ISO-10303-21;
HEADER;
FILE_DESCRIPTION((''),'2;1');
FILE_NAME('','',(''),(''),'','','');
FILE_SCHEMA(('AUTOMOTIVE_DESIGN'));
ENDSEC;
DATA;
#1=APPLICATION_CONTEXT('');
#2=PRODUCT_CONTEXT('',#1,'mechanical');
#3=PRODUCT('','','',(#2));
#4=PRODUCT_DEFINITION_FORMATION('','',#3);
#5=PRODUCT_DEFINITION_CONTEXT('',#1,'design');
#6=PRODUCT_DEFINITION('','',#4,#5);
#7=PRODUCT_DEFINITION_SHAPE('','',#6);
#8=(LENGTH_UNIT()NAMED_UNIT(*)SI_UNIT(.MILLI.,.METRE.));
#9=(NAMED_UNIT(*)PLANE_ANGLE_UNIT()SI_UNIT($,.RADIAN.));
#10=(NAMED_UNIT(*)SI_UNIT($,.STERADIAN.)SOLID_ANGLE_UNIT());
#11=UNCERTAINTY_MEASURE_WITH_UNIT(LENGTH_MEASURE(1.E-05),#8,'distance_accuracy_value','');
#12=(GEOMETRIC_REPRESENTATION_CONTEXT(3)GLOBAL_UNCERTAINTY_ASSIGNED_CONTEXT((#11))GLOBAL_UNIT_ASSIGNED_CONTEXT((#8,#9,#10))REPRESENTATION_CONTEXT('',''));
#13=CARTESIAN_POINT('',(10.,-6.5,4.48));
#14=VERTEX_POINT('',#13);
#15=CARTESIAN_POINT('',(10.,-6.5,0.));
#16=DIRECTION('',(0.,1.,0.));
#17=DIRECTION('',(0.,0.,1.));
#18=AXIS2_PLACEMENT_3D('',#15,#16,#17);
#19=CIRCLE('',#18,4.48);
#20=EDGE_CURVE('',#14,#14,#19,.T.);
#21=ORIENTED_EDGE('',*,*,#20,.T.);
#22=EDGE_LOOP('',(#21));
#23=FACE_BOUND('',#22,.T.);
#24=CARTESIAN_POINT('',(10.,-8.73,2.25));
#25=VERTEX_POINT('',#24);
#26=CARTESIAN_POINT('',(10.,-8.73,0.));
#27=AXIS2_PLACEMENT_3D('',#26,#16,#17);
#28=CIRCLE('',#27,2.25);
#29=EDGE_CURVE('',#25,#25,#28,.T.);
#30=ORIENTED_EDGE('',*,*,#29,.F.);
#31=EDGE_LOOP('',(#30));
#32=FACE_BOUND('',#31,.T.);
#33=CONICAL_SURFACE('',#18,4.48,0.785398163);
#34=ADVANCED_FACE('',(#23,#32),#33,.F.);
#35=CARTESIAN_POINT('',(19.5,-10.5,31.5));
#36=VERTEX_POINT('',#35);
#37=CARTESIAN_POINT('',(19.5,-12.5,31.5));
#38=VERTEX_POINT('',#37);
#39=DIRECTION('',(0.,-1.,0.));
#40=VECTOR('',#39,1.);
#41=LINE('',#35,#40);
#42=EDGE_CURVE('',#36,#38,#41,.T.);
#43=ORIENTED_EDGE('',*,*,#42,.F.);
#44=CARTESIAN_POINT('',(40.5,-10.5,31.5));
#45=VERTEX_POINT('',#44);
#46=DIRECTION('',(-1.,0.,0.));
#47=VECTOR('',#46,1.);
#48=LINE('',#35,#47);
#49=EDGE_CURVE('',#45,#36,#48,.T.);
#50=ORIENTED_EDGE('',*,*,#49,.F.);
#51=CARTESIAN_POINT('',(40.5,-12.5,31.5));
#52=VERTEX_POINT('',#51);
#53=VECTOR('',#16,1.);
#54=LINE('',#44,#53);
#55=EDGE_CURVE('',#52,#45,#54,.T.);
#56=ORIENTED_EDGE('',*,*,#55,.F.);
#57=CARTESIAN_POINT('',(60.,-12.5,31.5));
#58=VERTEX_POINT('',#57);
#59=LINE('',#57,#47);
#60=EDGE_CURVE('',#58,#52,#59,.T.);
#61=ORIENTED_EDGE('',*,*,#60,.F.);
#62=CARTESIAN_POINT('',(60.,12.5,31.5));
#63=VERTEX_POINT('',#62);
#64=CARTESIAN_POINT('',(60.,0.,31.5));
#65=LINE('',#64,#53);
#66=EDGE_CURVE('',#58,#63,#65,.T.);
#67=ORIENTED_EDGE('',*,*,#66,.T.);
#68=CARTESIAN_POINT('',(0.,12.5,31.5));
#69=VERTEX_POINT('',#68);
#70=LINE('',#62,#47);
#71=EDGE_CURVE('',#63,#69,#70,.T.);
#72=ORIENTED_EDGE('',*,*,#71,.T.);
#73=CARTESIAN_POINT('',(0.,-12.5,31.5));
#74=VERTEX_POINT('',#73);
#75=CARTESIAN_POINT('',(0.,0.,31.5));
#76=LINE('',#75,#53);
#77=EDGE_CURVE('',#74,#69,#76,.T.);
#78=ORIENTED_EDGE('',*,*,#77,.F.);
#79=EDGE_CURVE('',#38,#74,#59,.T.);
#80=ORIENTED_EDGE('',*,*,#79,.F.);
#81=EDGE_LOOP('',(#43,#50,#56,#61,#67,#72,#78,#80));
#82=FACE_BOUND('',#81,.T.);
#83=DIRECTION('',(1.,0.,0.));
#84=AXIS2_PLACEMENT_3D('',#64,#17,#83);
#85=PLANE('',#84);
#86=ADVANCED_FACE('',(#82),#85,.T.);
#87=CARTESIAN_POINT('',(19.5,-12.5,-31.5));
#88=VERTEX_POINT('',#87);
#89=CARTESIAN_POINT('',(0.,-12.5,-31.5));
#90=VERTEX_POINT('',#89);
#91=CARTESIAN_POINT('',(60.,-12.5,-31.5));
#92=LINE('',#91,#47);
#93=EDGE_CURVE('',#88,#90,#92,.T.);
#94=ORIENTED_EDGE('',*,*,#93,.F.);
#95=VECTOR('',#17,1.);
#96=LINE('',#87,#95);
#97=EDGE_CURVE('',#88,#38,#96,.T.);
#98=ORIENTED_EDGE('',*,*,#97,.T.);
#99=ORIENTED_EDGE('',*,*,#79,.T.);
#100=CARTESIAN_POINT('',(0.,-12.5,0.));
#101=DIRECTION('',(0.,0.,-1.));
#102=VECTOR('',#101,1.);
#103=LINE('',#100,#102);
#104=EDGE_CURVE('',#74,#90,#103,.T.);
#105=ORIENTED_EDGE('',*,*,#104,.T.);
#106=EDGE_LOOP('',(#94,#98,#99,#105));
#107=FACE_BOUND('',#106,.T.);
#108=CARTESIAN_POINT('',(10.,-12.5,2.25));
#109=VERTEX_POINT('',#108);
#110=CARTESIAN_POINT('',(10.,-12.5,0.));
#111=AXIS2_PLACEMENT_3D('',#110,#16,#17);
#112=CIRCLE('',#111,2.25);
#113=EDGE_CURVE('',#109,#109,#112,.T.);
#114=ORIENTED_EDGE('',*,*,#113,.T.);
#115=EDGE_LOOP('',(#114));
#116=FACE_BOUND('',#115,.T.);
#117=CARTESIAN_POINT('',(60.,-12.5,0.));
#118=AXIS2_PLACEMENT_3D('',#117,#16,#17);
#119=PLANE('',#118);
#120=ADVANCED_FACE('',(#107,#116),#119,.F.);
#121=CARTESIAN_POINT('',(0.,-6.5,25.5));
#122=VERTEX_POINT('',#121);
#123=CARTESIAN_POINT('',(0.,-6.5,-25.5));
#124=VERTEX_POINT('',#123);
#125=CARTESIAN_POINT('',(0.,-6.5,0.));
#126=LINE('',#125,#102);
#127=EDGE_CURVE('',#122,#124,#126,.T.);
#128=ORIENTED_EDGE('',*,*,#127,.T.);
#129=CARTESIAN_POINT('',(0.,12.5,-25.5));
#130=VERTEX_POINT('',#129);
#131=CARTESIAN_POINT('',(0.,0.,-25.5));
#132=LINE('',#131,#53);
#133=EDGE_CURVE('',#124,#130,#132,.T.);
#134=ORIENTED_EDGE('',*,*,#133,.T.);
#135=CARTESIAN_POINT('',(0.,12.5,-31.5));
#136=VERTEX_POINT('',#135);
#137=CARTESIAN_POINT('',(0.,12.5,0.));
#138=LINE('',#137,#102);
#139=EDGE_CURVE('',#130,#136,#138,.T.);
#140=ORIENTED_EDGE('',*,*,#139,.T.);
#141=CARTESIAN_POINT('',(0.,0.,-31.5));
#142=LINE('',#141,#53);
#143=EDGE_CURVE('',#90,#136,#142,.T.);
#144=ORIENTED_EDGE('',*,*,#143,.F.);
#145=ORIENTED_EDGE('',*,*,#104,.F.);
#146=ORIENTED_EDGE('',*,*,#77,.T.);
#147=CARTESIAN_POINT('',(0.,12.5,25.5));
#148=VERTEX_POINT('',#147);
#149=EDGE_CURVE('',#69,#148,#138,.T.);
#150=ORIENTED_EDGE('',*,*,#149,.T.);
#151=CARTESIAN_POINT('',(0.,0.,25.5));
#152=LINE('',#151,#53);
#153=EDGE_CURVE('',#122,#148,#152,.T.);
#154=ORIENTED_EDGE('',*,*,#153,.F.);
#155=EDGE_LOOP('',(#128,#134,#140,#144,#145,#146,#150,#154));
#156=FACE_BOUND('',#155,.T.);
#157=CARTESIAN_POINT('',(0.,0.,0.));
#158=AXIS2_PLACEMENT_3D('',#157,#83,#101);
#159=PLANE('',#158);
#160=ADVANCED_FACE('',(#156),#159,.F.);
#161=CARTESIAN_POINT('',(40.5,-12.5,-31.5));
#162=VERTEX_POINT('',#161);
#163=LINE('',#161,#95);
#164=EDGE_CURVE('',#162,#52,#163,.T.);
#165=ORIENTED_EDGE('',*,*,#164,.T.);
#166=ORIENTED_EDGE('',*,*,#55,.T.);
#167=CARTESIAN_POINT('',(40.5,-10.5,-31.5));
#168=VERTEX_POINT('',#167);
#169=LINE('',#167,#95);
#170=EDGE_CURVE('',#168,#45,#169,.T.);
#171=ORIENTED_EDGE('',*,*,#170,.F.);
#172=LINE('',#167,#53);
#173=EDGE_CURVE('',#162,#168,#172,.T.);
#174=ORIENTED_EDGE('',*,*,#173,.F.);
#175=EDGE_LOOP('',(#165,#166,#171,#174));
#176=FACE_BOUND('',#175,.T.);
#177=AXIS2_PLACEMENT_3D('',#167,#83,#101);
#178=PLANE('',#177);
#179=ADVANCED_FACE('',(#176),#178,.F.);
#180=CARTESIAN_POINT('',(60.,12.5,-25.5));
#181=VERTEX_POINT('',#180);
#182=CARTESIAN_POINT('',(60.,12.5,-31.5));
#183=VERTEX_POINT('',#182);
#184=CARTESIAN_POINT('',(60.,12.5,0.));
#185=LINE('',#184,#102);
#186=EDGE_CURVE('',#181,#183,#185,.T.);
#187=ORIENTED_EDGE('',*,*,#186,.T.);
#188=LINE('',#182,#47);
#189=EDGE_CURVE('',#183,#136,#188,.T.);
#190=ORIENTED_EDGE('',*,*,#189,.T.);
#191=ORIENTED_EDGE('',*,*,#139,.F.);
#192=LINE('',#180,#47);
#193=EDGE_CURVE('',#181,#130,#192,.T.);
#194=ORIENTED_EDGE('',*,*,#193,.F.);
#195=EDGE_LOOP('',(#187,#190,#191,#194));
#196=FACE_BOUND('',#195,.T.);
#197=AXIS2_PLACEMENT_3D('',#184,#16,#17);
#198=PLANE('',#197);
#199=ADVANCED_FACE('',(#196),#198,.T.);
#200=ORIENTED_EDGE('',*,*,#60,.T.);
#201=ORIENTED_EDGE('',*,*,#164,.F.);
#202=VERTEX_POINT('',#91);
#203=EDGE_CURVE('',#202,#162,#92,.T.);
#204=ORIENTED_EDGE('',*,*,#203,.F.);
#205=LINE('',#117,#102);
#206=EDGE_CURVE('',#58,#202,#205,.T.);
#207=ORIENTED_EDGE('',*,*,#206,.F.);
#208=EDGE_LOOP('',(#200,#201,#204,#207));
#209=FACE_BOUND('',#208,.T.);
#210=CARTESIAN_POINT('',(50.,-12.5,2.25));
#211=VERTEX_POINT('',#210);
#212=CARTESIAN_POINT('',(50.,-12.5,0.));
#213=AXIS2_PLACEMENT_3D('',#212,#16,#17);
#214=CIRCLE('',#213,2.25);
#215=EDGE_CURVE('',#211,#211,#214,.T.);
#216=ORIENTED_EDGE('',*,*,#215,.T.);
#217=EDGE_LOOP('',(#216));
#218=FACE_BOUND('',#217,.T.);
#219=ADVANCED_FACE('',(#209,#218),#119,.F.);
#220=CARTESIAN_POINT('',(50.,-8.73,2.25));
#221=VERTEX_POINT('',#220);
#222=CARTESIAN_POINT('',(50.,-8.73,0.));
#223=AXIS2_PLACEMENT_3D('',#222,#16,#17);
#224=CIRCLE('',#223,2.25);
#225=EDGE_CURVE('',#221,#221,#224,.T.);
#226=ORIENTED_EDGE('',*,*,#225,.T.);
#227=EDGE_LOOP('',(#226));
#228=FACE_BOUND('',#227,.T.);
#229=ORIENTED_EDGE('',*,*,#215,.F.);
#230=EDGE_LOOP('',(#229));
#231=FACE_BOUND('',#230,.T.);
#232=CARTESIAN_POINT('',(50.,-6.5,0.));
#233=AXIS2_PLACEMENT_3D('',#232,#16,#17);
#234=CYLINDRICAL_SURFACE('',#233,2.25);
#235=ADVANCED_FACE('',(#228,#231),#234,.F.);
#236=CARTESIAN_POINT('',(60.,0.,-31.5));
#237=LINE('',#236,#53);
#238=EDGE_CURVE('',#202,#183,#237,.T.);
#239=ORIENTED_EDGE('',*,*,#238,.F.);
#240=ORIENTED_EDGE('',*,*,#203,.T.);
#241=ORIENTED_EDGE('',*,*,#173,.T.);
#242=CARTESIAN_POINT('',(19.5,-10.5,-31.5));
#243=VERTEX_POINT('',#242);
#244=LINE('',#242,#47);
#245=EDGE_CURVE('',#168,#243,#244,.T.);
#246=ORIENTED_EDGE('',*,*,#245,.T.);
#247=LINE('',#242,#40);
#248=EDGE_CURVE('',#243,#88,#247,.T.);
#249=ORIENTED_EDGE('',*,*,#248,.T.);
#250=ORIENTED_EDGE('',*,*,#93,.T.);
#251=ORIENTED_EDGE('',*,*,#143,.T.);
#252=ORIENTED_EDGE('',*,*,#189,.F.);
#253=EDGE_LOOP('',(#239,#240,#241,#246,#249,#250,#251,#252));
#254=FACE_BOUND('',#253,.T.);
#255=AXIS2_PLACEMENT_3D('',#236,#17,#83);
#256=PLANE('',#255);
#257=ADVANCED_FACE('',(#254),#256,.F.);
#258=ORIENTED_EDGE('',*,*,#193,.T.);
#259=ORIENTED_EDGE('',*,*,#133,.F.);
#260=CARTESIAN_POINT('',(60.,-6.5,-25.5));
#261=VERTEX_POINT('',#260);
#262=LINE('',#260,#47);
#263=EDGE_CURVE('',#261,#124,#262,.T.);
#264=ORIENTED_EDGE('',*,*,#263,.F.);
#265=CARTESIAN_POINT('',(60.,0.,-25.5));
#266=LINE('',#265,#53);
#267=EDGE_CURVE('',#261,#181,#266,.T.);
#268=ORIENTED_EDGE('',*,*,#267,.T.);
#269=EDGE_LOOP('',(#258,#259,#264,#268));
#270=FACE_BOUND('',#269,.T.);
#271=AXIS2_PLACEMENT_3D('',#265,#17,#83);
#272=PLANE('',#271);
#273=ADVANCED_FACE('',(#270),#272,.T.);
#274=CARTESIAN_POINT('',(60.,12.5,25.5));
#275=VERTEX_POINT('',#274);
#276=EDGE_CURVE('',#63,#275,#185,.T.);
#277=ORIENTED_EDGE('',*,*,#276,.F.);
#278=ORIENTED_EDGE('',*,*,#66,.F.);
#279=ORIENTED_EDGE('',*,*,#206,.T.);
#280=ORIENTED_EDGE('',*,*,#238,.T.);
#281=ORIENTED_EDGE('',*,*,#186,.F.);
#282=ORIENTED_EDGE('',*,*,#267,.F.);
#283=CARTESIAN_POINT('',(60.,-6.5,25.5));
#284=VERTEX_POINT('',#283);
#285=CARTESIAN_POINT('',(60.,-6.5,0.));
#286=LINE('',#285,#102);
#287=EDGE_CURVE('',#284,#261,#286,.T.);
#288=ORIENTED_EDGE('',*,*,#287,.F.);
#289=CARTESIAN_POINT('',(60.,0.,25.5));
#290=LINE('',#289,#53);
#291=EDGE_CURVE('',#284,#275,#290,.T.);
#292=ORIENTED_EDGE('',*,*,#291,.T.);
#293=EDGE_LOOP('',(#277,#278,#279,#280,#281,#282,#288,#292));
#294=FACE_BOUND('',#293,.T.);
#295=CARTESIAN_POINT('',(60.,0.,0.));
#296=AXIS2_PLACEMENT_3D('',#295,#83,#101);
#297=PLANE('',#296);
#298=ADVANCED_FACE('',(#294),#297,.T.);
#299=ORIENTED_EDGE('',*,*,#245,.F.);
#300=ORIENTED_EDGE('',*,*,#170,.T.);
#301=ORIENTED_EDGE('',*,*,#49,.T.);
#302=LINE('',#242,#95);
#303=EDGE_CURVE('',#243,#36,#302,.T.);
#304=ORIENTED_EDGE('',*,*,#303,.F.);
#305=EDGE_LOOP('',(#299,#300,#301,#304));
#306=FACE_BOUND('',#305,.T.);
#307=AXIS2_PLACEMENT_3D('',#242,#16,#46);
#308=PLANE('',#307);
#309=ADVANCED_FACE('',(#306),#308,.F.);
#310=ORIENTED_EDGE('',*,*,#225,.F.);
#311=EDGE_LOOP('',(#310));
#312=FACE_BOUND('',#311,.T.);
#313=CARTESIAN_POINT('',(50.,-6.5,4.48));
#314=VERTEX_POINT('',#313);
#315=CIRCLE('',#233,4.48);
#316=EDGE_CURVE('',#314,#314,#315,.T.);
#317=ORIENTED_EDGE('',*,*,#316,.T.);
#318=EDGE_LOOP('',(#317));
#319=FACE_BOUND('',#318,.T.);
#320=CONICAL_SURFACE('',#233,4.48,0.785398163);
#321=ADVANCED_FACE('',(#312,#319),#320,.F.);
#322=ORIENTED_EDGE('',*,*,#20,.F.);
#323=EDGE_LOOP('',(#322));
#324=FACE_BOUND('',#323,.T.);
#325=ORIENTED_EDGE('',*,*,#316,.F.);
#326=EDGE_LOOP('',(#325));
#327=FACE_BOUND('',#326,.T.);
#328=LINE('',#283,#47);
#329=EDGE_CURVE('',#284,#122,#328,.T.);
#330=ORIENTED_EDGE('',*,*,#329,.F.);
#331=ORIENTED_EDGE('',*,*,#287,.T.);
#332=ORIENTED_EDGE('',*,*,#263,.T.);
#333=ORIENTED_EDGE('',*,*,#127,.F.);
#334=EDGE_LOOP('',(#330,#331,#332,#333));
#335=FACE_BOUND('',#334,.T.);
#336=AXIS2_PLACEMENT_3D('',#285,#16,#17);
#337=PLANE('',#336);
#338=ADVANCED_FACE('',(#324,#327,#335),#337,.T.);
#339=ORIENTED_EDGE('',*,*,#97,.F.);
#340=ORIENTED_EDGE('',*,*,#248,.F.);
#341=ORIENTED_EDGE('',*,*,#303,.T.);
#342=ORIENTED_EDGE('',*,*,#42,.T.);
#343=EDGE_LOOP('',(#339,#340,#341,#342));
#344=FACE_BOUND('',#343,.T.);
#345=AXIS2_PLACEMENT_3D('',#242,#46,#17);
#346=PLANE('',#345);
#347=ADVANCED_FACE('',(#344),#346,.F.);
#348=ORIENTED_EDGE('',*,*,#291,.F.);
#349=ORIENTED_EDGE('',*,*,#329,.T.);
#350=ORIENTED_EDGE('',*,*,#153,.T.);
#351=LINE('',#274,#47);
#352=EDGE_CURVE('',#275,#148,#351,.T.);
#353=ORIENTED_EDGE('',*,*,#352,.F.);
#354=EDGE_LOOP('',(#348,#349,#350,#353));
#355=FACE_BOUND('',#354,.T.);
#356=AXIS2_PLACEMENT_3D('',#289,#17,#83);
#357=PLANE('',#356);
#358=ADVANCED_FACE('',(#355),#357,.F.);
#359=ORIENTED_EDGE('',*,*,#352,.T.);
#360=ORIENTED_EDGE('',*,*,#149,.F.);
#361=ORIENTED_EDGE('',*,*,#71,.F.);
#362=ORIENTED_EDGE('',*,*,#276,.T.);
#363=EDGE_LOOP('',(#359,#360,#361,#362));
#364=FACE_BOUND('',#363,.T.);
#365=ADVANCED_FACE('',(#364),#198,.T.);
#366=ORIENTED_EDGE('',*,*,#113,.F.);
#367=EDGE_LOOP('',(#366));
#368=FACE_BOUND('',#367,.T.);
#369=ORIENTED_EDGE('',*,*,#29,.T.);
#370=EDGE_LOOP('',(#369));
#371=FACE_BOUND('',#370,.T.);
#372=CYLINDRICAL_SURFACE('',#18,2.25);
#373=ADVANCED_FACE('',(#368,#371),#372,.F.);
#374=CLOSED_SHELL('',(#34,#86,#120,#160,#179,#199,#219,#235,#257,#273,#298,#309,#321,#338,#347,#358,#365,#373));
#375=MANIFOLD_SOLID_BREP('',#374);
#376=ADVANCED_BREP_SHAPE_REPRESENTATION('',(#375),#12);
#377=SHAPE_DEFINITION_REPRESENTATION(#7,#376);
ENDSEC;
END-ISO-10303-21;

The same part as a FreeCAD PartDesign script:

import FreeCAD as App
import Part
import Sketcher
from FreeCAD import Vector
Q = App.Units.Quantity

doc = App.newDocument("Part")
body = doc.addObject("PartDesign::Body", "Body")

sketch1 = body.newObject("Sketcher::SketchObject", "Sketch")
sketch1.AttachmentSupport = (doc.getObject("YZ_Plane"), [""])
sketch1.MapMode = "FlatFace"
sketch1.addGeometry(Part.LineSegment(Vector(12, 32, 0), Vector(-12, 32, 0)), False)
sketch1.addGeometry(Part.LineSegment(Vector(-12, 32, 0), Vector(-12, -32, 0)), False)
sketch1.addGeometry(Part.LineSegment(Vector(-12, -32, 0), Vector(12, -32, 0)), False)
sketch1.addGeometry(Part.LineSegment(Vector(12, -32, 0), Vector(12, -26, 0)), False)
sketch1.addGeometry(Part.LineSegment(Vector(12, -26, 0), Vector(-6, -26, 0)), False)
sketch1.addGeometry(Part.LineSegment(Vector(-6, -26, 0), Vector(-6, 26, 0)), False)
sketch1.addGeometry(Part.LineSegment(Vector(-6, 26, 0), Vector(12, 26, 0)), False)
sketch1.addGeometry(Part.LineSegment(Vector(12, 26, 0), Vector(12, 32, 0)), False)
sketch1.addConstraint(Sketcher.Constraint("Coincident", 0, 2, 1, 1))
sketch1.addConstraint(Sketcher.Constraint("Coincident", 1, 2, 2, 1))
sketch1.addConstraint(Sketcher.Constraint("Coincident", 2, 2, 3, 1))
sketch1.addConstraint(Sketcher.Constraint("Coincident", 3, 2, 4, 1))
sketch1.addConstraint(Sketcher.Constraint("Coincident", 4, 2, 5, 1))
sketch1.addConstraint(Sketcher.Constraint("Coincident", 5, 2, 6, 1))
sketch1.addConstraint(Sketcher.Constraint("Coincident", 6, 2, 7, 1))
sketch1.addConstraint(Sketcher.Constraint("Coincident", 7, 2, 0, 1))
sketch1.addConstraint(Sketcher.Constraint("Horizontal", 0))
sketch1.addConstraint(Sketcher.Constraint("Vertical", 1))
sketch1.addConstraint(Sketcher.Constraint("Horizontal", 2))
sketch1.addConstraint(Sketcher.Constraint("Vertical", 3))
sketch1.addConstraint(Sketcher.Constraint("Horizontal", 4))
sketch1.addConstraint(Sketcher.Constraint("Vertical", 5))
sketch1.addConstraint(Sketcher.Constraint("Horizontal", 6))
sketch1.addConstraint(Sketcher.Constraint("Vertical", 7))
sketch1.addConstraint(Sketcher.Constraint("Symmetric", 0, 2, 2, 2, -1, 1))
sketch1.addConstraint(Sketcher.Constraint("Symmetric", 3, 2, 6, 2, -1))
sketch1.addConstraint(Sketcher.Constraint("DistanceX", 0, 2, 0, 1, Q("25 mm")))
sketch1.addConstraint(Sketcher.Constraint("DistanceX", 4, 2, 4, 1, Q("19 mm")))
sketch1.addConstraint(Sketcher.Constraint("DistanceY", 1, 2, 1, 1, Q("63 mm")))
sketch1.addConstraint(Sketcher.Constraint("DistanceY", 3, 1, 3, 2, Q("6 mm")))
pad1 = body.newObject("PartDesign::Pad", "Pad")
pad1.Profile = sketch1
pad1.Length = 60

sketch2 = body.newObject("Sketcher::SketchObject", "Sketch001")
sketch2.AttachmentSupport = (doc.getObject("XY_Plane"), [""])
sketch2.MapMode = "FlatFace"
sketch2.AttachmentOffset = App.Placement(Vector(0, 0, 31.5), App.Rotation())
sketch2.addGeometry(Part.LineSegment(Vector(19.5, -10.5, 0), Vector(19.5, -12.5, 0)), False)
sketch2.addGeometry(Part.LineSegment(Vector(19.5, -12.5, 0), Vector(40.5, -12.5, 0)), False)
sketch2.addGeometry(Part.LineSegment(Vector(40.5, -12.5, 0), Vector(40.5, -10.5, 0)), False)
sketch2.addGeometry(Part.LineSegment(Vector(40.5, -10.5, 0), Vector(19.5, -10.5, 0)), False)
sketch2.addConstraint(Sketcher.Constraint("Coincident", 0, 2, 1, 1))
sketch2.addConstraint(Sketcher.Constraint("Coincident", 1, 2, 2, 1))
sketch2.addConstraint(Sketcher.Constraint("Coincident", 2, 2, 3, 1))
sketch2.addConstraint(Sketcher.Constraint("Coincident", 3, 2, 0, 1))
sketch2.addConstraint(Sketcher.Constraint("Vertical", 0))
sketch2.addConstraint(Sketcher.Constraint("Horizontal", 1))
sketch2.addConstraint(Sketcher.Constraint("Vertical", 2))
sketch2.addConstraint(Sketcher.Constraint("Horizontal", 3))
sketch2.addConstraint(Sketcher.Constraint("DistanceX", 1, 1, 1, 2, Q("21 mm")))
sketch2.addConstraint(Sketcher.Constraint("DistanceY", 0, 2, 0, 1, Q("2 mm")))
sketch2.addConstraint(Sketcher.Constraint("DistanceX", -1, 1, 0, 2, Q("19.5 mm")))
sketch2.addConstraint(Sketcher.Constraint("DistanceY", 0, 2, -1, 1, Q("12.5 mm")))
pocket1 = body.newObject("PartDesign::Pocket", "Pocket")
pocket1.Profile = sketch2
pocket1.Type = "ThroughAll"

sketch3 = body.newObject("Sketcher::SketchObject", "Sketch002")
sketch3.AttachmentSupport = (doc.getObject("XZ_Plane"), [""])
sketch3.MapMode = "FlatFace"
sketch3.AttachmentOffset = App.Placement(Vector(0, 0, 6.5), App.Rotation())
sketch3.addGeometry(Part.Circle(Vector(10, 0, 0), Vector(0, 0, 1), 2.2), False)
sketch3.addGeometry(Part.Circle(Vector(50, 0, 0), Vector(0, 0, 1), 2.2), False)
sketch3.addConstraint(Sketcher.Constraint("Equal", 0, 1))
sketch3.addConstraint(Sketcher.Constraint("PointOnObject", 0, 3, -1))
sketch3.addConstraint(Sketcher.Constraint("PointOnObject", 1, 3, -1))
sketch3.addConstraint(Sketcher.Constraint("Diameter", 0, Q("4.5 mm")))
sketch3.addConstraint(Sketcher.Constraint("DistanceX", -1, 1, 0, 3, Q("10 mm")))
sketch3.addConstraint(Sketcher.Constraint("DistanceX", -1, 1, 1, 3, Q("50 mm")))
doc.recompute()
hole = body.newObject("PartDesign::Hole", "Hole")
hole.Profile = sketch3
hole.ThreadType = "None"
hole.Diameter = 4.5
hole.DepthType = "ThroughAll"
hole.HoleCutType = "Countersink"
hole.HoleCutDiameter = 8.96
hole.HoleCutCountersinkAngle = 90
hole.Reversed = True

doc.recompute()
